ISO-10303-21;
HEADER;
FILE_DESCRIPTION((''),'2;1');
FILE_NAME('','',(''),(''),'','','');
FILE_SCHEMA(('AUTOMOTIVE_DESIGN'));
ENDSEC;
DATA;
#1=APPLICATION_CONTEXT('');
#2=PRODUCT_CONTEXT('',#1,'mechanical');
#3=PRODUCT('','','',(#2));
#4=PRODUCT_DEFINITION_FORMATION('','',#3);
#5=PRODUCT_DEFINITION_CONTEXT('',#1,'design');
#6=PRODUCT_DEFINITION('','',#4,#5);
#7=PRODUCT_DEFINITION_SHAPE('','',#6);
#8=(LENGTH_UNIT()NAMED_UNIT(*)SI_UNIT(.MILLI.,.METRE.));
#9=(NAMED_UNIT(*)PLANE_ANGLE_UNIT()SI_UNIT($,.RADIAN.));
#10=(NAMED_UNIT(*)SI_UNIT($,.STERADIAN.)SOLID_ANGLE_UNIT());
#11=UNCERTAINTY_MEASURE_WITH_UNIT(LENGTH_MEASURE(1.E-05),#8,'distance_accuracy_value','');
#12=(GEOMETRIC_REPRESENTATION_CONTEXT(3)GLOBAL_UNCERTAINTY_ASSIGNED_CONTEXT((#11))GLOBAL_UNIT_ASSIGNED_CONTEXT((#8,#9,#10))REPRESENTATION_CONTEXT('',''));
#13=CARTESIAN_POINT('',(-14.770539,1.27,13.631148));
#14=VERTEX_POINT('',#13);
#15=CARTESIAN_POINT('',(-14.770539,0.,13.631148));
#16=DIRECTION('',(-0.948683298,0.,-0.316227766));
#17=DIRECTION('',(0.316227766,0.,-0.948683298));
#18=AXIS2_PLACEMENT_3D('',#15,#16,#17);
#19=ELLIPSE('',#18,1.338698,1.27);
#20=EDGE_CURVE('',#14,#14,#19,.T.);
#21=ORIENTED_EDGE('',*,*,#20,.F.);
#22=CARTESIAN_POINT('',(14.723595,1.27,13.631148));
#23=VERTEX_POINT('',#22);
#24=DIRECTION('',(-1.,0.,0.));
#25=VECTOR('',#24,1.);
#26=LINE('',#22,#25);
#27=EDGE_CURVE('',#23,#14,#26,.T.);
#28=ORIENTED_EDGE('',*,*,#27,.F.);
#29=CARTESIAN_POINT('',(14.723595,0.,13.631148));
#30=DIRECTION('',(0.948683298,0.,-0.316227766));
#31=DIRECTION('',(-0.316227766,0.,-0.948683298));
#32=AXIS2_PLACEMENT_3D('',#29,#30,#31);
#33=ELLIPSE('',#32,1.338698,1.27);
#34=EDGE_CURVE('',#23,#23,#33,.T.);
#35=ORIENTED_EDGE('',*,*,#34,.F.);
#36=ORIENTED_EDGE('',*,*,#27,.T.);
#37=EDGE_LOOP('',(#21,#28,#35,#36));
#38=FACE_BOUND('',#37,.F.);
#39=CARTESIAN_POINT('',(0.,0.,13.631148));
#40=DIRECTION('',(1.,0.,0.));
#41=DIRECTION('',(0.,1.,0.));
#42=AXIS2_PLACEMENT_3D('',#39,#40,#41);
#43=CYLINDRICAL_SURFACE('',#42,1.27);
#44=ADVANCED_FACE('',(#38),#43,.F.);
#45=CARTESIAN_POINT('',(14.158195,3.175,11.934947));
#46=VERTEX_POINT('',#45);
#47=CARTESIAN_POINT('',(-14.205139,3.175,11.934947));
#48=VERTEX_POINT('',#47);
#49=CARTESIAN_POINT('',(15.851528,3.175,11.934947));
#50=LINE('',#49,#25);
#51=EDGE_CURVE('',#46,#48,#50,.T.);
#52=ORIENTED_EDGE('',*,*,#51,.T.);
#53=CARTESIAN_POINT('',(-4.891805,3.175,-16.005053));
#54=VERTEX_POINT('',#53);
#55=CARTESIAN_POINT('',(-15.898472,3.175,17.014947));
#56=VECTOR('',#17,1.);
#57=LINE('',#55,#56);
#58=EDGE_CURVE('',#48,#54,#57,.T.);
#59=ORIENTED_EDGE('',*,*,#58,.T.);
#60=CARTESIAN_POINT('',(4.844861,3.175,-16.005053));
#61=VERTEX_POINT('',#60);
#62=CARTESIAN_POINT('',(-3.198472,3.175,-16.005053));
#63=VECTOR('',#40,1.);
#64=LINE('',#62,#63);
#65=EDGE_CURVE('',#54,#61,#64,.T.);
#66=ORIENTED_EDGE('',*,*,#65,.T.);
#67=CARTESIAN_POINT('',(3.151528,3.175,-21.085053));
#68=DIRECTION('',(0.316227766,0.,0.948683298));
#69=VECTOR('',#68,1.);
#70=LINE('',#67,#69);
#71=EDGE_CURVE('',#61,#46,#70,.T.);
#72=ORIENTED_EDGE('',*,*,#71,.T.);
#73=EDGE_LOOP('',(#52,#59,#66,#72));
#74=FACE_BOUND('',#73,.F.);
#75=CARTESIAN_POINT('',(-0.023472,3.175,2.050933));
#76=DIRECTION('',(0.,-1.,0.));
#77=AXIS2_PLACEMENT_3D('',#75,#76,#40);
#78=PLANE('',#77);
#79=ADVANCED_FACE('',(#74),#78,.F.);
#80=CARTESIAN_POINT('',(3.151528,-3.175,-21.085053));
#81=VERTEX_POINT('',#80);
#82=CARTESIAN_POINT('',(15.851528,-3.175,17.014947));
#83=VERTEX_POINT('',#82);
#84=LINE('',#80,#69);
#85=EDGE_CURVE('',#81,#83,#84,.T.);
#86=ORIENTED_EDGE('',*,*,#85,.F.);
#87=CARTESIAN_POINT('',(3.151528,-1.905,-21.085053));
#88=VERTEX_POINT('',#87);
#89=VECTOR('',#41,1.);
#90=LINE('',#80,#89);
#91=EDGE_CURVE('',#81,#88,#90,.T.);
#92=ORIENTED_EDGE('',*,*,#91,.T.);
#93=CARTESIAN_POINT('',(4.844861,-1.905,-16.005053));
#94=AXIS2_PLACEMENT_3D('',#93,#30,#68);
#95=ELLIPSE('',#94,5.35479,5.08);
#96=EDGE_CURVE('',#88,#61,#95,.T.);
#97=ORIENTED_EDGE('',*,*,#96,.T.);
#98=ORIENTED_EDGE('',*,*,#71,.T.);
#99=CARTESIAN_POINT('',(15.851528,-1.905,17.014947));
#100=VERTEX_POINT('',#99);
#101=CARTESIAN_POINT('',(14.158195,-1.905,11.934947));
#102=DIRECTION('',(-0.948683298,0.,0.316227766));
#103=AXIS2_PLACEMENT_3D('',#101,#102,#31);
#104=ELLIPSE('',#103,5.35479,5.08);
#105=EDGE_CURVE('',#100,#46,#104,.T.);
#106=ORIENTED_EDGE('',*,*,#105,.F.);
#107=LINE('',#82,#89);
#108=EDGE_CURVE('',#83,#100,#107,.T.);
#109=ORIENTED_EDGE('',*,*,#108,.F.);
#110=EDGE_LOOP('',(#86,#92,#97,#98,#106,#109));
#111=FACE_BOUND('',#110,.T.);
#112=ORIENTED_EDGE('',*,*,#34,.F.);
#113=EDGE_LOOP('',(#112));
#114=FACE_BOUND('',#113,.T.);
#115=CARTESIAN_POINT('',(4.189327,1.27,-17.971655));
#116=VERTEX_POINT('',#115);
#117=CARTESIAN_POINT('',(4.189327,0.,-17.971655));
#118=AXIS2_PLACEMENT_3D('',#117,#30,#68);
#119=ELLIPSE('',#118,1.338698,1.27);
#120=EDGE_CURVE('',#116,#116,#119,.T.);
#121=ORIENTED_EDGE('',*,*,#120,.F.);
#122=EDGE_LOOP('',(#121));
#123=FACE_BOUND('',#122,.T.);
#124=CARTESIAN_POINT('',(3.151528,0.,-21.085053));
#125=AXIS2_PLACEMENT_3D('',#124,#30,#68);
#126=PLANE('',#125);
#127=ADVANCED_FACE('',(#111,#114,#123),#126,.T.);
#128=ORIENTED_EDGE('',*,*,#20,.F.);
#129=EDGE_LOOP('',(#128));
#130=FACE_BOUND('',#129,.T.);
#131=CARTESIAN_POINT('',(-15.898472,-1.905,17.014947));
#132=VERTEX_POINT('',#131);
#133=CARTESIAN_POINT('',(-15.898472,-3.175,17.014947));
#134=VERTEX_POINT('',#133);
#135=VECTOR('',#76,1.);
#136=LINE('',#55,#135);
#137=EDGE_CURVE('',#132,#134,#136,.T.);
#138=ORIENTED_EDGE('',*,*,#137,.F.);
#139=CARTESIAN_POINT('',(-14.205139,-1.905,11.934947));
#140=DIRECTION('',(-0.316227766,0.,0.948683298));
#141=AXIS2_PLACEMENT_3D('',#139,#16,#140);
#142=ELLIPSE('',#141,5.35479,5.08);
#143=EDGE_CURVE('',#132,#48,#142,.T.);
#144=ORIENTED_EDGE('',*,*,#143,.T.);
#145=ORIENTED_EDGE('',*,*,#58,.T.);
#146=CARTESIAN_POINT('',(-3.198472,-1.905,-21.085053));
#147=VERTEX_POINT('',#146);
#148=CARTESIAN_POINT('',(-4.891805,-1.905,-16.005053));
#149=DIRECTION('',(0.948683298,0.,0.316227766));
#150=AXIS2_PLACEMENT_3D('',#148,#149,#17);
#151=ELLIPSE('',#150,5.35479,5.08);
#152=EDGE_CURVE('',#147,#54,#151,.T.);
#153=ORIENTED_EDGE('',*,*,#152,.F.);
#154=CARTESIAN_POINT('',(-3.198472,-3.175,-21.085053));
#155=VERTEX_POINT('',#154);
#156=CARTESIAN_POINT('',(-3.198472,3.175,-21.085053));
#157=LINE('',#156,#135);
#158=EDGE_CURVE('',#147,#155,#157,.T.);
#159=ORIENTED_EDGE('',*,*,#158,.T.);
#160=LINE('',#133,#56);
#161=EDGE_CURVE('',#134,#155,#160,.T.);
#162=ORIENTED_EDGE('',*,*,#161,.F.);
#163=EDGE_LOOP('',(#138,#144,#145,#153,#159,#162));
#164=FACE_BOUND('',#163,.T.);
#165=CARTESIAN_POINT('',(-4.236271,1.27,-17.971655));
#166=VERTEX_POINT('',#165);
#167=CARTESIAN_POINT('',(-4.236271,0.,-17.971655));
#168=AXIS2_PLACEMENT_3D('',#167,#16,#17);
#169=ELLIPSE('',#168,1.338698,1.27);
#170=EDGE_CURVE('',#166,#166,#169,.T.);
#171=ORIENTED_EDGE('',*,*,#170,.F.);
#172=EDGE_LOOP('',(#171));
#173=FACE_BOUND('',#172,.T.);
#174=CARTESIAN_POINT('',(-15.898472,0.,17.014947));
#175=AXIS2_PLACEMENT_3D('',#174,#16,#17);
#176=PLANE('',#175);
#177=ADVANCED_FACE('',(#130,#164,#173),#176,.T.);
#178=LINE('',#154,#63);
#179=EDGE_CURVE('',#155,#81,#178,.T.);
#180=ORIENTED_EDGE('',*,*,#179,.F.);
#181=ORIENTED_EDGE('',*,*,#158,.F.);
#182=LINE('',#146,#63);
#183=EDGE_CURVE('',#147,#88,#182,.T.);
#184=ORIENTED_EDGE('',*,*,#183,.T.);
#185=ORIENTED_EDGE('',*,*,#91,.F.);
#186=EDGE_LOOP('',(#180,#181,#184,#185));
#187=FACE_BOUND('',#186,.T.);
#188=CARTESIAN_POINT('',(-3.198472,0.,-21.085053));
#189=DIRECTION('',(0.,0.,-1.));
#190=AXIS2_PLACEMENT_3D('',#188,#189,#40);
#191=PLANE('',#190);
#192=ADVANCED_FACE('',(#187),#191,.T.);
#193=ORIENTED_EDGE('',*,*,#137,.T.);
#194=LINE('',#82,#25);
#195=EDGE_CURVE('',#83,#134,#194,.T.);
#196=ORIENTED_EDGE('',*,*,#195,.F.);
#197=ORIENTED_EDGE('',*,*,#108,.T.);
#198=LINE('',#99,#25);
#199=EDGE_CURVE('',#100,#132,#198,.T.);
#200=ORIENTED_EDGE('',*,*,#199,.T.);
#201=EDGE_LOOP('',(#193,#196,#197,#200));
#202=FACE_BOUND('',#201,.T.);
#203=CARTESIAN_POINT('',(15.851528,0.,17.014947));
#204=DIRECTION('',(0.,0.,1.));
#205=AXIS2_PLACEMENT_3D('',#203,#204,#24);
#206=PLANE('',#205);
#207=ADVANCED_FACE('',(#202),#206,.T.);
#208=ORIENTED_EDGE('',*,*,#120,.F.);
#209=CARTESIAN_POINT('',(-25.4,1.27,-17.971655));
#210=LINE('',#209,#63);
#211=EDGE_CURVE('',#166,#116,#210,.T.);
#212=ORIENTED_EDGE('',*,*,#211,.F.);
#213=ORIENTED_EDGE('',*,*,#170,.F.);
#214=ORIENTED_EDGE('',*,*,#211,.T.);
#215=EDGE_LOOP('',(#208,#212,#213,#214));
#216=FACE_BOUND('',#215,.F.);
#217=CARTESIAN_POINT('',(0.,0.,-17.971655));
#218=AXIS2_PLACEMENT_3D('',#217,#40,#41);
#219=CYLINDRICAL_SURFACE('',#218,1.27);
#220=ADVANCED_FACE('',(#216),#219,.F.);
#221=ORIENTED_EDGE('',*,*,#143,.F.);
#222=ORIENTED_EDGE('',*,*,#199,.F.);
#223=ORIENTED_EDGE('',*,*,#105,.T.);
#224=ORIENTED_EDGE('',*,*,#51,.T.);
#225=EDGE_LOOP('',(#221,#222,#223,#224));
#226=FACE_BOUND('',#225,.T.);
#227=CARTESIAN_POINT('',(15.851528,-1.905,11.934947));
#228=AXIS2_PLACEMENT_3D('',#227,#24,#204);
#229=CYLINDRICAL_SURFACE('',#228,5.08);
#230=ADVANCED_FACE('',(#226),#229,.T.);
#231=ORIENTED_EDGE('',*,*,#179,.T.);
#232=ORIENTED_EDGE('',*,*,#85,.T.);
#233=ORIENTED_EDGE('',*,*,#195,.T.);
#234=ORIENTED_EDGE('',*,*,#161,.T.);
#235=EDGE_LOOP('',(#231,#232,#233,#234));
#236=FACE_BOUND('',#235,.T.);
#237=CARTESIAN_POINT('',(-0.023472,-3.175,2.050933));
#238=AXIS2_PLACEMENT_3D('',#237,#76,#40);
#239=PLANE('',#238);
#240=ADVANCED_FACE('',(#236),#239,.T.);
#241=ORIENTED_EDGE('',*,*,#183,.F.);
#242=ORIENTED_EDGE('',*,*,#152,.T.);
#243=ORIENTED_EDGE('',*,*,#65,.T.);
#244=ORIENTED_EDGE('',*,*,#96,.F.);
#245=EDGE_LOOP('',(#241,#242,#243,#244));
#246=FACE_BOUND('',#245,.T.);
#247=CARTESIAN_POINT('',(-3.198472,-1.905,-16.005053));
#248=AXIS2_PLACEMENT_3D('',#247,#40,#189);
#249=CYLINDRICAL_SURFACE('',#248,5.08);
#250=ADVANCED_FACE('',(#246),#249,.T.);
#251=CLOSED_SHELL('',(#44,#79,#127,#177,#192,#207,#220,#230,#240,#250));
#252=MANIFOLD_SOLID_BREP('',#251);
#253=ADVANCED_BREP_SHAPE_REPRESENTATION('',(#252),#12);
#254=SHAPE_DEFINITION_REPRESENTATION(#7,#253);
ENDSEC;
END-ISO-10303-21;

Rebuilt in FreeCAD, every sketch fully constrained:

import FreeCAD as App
import Part
import Sketcher

V = App.Vector
Q = App.Units.Quantity


def edges_at(feature, points):
    """Names of the edges that pass closest to the given points."""
    edges = feature.Shape.Edges
    near = lambda p: min(range(len(edges)), key=lambda i: edges[i].distToShape(Part.Vertex(*p))[0])
    return sorted({f"Edge{near(p) + 1}" for p in points})

doc = App.newDocument("Part")
body = doc.addObject("PartDesign::Body", "Body")

sketch1 = body.newObject("Sketcher::SketchObject", "Sketch")
sketch1.AttachmentSupport = (doc.getObject("XZ_Plane"), [""])
sketch1.MapMode = "FlatFace"
sketch1.addGeometry([
    Part.LineSegment(V(16, 17, 0), V(-16, 17, 0)),
    Part.LineSegment(V(-16, 17, 0), V(-3, -21, 0)),
    Part.LineSegment(V(-3, -21, 0), V(3, -21, 0)),
    Part.LineSegment(V(3, -21, 0), V(16, 17, 0)),
], False)
sketch1.addConstraint([
    Sketcher.Constraint("Coincident", 0, 2, 1, 1),
    Sketcher.Constraint("Coincident", 1, 2, 2, 1),
    Sketcher.Constraint("Coincident", 2, 2, 3, 1),
    Sketcher.Constraint("Coincident", 3, 2, 0, 1),
    Sketcher.Constraint("Horizontal", 0),
    Sketcher.Constraint("Horizontal", 2),
    Sketcher.Constraint("Equal", 1, 3),
    Sketcher.Constraint("DistanceX", 0, 2, 0, 1, Q("1.25 in")),
    Sketcher.Constraint("DistanceX", 2, 1, 2, 2, Q("0.25 in")),
    Sketcher.Constraint("DistanceY", 1, 2, 0, 2, Q("1.5 in")),
    Sketcher.Constraint("DistanceX", 0, 2, -1, 1, Q("15.898472 mm")),
    Sketcher.Constraint("DistanceY", -1, 1, 0, 2, Q("17.014947 mm")),
])
pad1 = body.newObject("PartDesign::Pad", "Pad")
pad1.Profile = sketch1
pad1.Length = Q("0.25 in")
pad1.Midplane = True
doc.recompute()

fillet = body.newObject("PartDesign::Fillet", "Fillet")
fillet.Base = (pad1, edges_at(pad1, [(-0.023, 3.175, 17.015), (-0.023, 3.175, -21.085)]))
fillet.Radius = Q("0.2 in")

sketch2 = body.newObject("Sketcher::SketchObject", "Sketch001")
sketch2.AttachmentSupport = (doc.getObject("YZ_Plane"), [""])
sketch2.MapMode = "FlatFace"
sketch2.addGeometry([
    Part.Circle(V(0, 13.6, 0), V(0, 0, 1), 1.3),
    Part.Circle(V(0, -18, 0), V(0, 0, 1), 1.3),
], False)
sketch2.addConstraint([
    Sketcher.Constraint("Equal", 0, 1),
    Sketcher.Constraint("PointOnObject", 0, 3, -2),
    Sketcher.Constraint("PointOnObject", 1, 3, -2),
    Sketcher.Constraint("Diameter", 0, Q("0.1 in")),
    Sketcher.Constraint("DistanceY", -1, 1, 0, 3, Q("13.631148 mm")),
    Sketcher.Constraint("DistanceY", 1, 3, -1, 1, Q("17.971655 mm")),
])
pocket1 = body.newObject("PartDesign::Pocket", "Pocket")
pocket1.Profile = sketch2
pocket1.Length = Q("2 in")
pocket1.Midplane = True

doc.recompute()
